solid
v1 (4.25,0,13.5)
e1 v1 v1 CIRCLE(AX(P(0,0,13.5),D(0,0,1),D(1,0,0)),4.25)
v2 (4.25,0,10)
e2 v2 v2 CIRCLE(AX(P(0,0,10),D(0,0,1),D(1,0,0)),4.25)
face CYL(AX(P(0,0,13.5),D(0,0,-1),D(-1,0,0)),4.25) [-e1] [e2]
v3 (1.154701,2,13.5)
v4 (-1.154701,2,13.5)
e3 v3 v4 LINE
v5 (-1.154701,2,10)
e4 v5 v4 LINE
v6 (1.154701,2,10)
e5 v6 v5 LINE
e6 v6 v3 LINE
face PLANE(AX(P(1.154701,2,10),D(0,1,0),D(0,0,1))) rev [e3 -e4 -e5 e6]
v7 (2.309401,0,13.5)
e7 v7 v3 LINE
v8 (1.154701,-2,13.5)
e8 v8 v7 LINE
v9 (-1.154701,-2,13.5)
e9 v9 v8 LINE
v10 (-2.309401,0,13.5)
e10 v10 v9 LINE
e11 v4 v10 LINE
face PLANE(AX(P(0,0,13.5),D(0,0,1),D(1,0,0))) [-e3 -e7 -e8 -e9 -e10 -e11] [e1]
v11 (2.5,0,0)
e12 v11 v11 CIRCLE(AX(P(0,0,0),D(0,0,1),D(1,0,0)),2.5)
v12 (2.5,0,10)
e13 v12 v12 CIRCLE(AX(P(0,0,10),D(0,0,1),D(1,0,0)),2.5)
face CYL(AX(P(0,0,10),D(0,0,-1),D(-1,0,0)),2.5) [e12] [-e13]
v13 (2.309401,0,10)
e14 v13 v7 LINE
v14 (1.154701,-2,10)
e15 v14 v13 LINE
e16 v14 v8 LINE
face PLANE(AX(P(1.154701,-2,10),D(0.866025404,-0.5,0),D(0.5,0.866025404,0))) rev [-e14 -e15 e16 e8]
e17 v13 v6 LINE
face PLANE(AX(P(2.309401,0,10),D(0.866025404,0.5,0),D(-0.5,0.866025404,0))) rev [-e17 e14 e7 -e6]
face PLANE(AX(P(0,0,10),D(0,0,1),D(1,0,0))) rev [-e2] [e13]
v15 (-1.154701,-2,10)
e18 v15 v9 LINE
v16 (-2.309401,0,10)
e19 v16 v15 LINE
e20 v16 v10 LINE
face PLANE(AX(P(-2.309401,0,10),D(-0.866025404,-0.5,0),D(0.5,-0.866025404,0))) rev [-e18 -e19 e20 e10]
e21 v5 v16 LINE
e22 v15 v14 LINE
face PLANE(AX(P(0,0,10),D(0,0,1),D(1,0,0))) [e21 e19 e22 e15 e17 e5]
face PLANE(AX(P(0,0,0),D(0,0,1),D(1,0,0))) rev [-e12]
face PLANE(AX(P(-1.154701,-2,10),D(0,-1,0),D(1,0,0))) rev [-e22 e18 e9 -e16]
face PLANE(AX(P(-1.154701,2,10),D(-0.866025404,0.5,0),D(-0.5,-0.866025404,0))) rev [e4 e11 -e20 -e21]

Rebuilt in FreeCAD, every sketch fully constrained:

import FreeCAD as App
import Part
import Sketcher
from FreeCAD import Vector
Q = App.Units.Quantity


def add_polygon(sketch, points):
    """Adds a closed chain of lines whose ends are joined by coincident constraints."""
    first, n = sketch.GeometryCount, len(points)
    for a, b in zip(points, points[1:] + points[:1]):
        sketch.addGeometry(Part.LineSegment(App.Vector(*a, 0), App.Vector(*b, 0)), False)
    for i in range(n):
        sketch.addConstraint(Sketcher.Constraint("Coincident", first + i, 2, first + (i + 1) % n, 1))

doc = App.newDocument("Part")
body = doc.addObject("PartDesign::Body", "Body")

# Sketch on XY plane
sketch1 = body.newObject("Sketcher::SketchObject", "Sketch")
sketch1.AttachmentSupport = (doc.getObject("XY_Plane"), [""])
sketch1.MapMode = "FlatFace"
sketch1.addGeometry(Part.Circle(Vector(0, 0, 0), Vector(0, 0, 1), 2.5), False)
sketch1.addConstraint(Sketcher.Constraint("Coincident", 0, 3, -1, 1))
sketch1.addConstraint(Sketcher.Constraint("Diameter", 0, Q("5 mm")))
pad1 = body.newObject("PartDesign::Pad", "Pad")
pad1.Profile = sketch1
pad1.Length = 10

# Sketch on XY plane
sketch2 = body.newObject("Sketcher::SketchObject", "Sketch001")
sketch2.AttachmentSupport = (doc.getObject("XY_Plane"), [""])
sketch2.MapMode = "FlatFace"
sketch2.AttachmentOffset = App.Placement(Vector(0, 0, 10), App.Rotation())
sketch2.addGeometry(Part.Circle(Vector(0, 0, 0), Vector(0, 0, 1), 4.2), False)
sketch2.addConstraint(Sketcher.Constraint("Coincident", 0, 3, -1, 1))
sketch2.addConstraint(Sketcher.Constraint("Diameter", 0, Q("8.5 mm")))
pad2 = body.newObject("PartDesign::Pad", "Pad001")
pad2.Profile = sketch2
pad2.Length = 3.5

# Sketch on XY plane
sketch3 = body.newObject("Sketcher::SketchObject", "Sketch002")
sketch3.AttachmentSupport = (doc.getObject("XY_Plane"), [""])
sketch3.MapMode = "FlatFace"
sketch3.AttachmentOffset = App.Placement(Vector(0, 0, 13.5), App.Rotation())
add_polygon(sketch3, [(2.3, 0), (1.2, 2), (-1.2, 2), (-2.3, 0), (-1.2, -2), (1.2, -2)])  # lines 0-5
sketch3.addConstraint(Sketcher.Constraint("Horizontal", 1))
sketch3.addConstraint(Sketcher.Constraint("Horizontal", 4))
sketch3.addConstraint(Sketcher.Constraint("Symmetric", 0, 2, 3, 2, -1, 1))
sketch3.addConstraint(Sketcher.Constraint("Symmetric", 2, 2, 5, 2, -1, 1))
sketch3.addConstraint(Sketcher.Constraint("PointOnObject", 2, 2, -1))
sketch3.addConstraint(Sketcher.Constraint("Parallel", 2, 5))
sketch3.addConstraint(Sketcher.Constraint("Vertical", 1, 2, 3, 2))
sketch3.addConstraint(Sketcher.Constraint("Angle", 0, Q("120 deg")))
sketch3.addConstraint(Sketcher.Constraint("DistanceY", -1, 1, 0, 2, Q("2 mm")))
sketch3.addConstraint(Sketcher.Constraint("DistanceX", 1, 2, 1, 1, Q("2.309401 mm")))
pocket1 = body.newObject("PartDesign::Pocket", "Pocket")
pocket1.Profile = sketch3
pocket1.Length = 3.5

doc.recompute()
